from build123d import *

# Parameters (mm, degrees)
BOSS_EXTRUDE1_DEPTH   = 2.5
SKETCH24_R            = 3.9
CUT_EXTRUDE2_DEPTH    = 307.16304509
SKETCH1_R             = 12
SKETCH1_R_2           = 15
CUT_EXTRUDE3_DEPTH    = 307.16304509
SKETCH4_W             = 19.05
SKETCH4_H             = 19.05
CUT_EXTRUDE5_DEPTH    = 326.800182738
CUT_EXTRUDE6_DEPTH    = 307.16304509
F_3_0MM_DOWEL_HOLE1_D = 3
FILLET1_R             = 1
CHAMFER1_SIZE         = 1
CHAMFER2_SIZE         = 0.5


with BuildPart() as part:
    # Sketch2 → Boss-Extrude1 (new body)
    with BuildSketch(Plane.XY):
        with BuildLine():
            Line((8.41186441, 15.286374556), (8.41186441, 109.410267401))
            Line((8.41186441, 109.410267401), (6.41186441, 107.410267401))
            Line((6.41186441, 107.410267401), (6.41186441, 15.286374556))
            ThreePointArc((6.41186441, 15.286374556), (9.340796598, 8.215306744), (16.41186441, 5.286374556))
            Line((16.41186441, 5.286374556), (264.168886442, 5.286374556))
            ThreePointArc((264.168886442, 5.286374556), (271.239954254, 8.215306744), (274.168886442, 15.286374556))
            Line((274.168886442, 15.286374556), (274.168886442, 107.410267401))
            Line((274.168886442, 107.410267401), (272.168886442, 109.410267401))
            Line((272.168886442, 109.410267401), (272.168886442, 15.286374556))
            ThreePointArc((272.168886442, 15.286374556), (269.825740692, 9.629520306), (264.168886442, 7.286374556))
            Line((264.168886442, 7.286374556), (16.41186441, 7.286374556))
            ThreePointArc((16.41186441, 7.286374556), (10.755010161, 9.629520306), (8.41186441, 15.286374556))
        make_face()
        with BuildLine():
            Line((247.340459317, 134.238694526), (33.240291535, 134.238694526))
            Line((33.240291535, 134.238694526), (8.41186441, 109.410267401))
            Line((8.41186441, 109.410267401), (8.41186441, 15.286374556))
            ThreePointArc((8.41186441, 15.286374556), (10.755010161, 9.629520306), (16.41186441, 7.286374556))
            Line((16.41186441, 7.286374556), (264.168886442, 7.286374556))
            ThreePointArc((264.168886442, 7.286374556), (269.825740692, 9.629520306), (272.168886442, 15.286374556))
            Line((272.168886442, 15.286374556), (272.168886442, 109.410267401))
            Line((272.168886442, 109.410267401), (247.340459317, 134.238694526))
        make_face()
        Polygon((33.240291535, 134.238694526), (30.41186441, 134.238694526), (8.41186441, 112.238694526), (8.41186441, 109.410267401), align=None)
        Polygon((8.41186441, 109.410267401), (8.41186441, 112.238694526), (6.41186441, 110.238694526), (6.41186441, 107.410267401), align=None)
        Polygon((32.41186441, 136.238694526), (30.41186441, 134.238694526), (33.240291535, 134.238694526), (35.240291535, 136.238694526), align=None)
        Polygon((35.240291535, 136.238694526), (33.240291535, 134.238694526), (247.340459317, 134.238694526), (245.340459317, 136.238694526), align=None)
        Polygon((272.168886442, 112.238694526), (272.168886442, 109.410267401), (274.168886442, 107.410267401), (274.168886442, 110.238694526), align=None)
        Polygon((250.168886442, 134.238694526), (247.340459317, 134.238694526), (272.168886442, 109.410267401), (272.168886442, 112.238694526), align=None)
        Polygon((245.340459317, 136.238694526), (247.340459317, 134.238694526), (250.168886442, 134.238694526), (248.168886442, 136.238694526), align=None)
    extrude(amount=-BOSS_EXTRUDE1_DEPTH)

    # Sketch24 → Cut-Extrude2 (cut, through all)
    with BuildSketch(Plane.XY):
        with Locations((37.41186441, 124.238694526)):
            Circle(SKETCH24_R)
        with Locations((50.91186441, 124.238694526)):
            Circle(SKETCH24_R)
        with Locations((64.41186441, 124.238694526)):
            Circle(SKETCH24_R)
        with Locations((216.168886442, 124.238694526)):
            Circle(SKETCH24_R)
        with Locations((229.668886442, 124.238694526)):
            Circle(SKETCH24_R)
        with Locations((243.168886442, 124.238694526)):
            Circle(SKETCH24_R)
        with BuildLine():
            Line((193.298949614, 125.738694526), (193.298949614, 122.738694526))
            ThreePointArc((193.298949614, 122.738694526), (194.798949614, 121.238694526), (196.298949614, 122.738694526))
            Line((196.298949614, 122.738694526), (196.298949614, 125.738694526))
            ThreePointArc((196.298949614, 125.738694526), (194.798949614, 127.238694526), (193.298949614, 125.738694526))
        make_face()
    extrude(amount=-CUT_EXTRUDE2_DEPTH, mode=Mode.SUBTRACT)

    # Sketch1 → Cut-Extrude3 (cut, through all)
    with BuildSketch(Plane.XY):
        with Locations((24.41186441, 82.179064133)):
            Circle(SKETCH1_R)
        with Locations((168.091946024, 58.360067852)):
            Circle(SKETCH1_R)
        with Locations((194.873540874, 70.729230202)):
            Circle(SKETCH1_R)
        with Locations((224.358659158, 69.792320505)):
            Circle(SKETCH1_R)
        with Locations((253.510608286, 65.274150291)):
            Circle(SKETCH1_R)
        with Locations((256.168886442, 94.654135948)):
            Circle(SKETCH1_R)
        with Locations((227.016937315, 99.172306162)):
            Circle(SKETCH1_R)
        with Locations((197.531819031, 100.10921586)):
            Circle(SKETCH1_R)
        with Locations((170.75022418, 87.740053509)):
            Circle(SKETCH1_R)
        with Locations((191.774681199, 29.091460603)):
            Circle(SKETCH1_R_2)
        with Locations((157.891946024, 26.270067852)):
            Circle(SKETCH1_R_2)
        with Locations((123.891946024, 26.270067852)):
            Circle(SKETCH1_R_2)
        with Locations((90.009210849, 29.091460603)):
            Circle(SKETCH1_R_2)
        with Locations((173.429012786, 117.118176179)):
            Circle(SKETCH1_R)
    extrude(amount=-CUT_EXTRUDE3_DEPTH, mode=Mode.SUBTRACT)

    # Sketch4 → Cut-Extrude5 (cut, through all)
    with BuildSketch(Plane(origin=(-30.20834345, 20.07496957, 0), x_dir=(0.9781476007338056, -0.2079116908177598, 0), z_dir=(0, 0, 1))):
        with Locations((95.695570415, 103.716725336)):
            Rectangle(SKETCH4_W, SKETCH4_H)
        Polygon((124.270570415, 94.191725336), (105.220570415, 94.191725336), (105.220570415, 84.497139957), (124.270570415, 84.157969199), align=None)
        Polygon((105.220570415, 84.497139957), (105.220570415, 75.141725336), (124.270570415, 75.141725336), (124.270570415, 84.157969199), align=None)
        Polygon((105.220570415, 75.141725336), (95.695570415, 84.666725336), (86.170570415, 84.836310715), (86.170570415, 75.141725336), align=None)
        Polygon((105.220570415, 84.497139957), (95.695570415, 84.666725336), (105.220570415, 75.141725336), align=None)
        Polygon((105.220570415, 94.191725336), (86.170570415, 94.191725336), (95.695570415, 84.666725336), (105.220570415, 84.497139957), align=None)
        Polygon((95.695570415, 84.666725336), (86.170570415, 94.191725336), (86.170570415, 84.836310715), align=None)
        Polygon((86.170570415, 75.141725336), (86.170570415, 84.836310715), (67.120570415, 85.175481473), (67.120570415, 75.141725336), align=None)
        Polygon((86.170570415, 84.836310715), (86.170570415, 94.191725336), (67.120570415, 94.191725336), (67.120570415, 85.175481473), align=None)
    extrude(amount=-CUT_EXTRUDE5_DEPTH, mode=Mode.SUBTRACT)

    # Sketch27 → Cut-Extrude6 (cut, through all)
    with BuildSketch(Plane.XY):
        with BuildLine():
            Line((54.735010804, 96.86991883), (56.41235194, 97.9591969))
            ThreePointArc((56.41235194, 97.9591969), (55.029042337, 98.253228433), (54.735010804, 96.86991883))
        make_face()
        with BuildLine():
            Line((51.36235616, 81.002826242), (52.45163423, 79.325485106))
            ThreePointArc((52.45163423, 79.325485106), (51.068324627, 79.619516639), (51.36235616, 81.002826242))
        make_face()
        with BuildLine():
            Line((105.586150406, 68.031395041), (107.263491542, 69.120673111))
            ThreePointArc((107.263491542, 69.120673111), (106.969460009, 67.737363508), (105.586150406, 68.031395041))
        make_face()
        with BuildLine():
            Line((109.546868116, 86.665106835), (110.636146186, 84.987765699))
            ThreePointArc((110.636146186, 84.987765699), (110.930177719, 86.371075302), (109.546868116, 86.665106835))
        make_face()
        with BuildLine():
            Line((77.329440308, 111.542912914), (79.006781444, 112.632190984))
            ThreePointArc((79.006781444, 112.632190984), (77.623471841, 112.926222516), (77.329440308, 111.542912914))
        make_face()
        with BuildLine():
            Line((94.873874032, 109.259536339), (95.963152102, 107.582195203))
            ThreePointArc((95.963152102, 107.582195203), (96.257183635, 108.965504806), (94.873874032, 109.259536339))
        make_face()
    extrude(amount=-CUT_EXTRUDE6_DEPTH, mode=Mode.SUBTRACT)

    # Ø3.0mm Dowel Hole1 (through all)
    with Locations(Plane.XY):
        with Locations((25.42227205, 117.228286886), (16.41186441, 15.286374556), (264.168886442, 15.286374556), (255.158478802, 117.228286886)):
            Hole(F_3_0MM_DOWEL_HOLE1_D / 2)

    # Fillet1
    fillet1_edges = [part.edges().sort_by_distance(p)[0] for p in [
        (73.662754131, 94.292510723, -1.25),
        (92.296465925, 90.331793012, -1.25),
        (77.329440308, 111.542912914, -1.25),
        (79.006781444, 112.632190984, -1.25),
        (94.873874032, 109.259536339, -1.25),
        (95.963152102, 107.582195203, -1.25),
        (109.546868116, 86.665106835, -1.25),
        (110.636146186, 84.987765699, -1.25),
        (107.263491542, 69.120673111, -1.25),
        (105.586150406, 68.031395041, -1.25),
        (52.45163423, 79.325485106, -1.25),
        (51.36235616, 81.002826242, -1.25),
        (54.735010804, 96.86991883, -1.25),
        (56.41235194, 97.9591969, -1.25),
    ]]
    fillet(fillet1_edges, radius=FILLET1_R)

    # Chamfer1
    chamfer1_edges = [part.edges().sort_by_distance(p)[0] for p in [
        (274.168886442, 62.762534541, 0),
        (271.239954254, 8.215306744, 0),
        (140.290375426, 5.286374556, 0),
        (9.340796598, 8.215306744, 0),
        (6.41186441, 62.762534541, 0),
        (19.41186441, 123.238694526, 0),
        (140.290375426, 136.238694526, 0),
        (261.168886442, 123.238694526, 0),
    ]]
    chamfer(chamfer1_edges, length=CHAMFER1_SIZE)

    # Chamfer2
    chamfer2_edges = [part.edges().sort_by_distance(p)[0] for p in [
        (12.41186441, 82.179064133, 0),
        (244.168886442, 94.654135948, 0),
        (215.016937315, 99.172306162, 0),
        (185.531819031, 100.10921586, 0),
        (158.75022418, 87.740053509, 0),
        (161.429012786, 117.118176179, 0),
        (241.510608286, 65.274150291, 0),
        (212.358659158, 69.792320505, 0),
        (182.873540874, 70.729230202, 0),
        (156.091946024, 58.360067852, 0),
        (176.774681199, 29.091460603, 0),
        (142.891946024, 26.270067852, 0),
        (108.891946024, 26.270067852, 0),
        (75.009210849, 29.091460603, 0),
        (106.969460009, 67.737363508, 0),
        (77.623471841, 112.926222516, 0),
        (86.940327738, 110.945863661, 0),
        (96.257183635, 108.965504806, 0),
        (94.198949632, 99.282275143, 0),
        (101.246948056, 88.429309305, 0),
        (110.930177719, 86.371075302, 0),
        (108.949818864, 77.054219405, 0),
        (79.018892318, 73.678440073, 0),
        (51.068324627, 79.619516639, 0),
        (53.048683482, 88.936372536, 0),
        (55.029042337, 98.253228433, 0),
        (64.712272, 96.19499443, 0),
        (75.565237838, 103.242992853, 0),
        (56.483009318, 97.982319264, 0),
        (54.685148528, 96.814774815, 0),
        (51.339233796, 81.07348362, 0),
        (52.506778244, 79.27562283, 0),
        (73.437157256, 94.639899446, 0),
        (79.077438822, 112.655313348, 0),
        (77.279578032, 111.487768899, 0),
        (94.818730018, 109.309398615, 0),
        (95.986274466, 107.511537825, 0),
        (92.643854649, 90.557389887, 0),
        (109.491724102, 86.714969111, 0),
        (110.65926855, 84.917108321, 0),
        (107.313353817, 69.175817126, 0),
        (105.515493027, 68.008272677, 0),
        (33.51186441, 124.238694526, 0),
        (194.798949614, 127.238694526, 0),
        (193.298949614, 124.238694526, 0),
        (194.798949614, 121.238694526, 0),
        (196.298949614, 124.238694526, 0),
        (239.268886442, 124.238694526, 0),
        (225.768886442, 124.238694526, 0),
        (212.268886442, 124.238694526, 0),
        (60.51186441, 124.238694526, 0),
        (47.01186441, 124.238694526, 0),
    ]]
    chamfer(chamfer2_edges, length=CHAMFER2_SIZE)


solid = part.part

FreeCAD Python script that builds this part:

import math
import FreeCAD as App
import Part
import Sketcher
Q = App.Units.Quantity


def edges_at(feature, points):
    """Names of the edges that pass closest to the given points."""
    edges = feature.Shape.Edges
    near = lambda p: min(range(len(edges)), key=lambda i: edges[i].distToShape(Part.Vertex(*p))[0])
    return sorted({f"Edge{near(p) + 1}" for p in points})


def add_polygon(sketch, points):
    """Adds a closed chain of lines whose ends are joined by coincident constraints."""
    first, n = sketch.GeometryCount, len(points)
    for a, b in zip(points, points[1:] + points[:1]):
        sketch.addGeometry(Part.LineSegment(App.Vector(*a, 0), App.Vector(*b, 0)), False)
    for i in range(n):
        sketch.addConstraint(Sketcher.Constraint("Coincident", first + i, 2, first + (i + 1) % n, 1))

doc = App.newDocument("Part")
body = doc.addObject("PartDesign::Body", "Body")

sketch1 = body.newObject("Sketcher::SketchObject", "Sketch")
sketch1.AttachmentSupport = (doc.getObject("XY_Plane"), [""])
sketch1.MapMode = "FlatFace"
sketch1.addGeometry([
    Part.ArcOfCircle(Part.Circle(App.Vector(16, 15, 0), App.Vector(0, 0, 1), 10), math.radians(180), math.radians(270)),
    Part.LineSegment(App.Vector(16, 5, 0), App.Vector(264, 5, 0)),
    Part.ArcOfCircle(Part.Circle(App.Vector(264, 15, 0), App.Vector(0, 0, 1), 10), math.radians(-90), math.radians(0)),
    Part.LineSegment(App.Vector(274, 15, 0), App.Vector(274, 110, 0)),
    Part.LineSegment(App.Vector(274, 110, 0), App.Vector(248, 136, 0)),
    Part.LineSegment(App.Vector(248, 136, 0), App.Vector(32, 136, 0)),
    Part.LineSegment(App.Vector(32, 136, 0), App.Vector(6, 110, 0)),
    Part.LineSegment(App.Vector(6, 110, 0), App.Vector(6, 15, 0)),
], False)
sketch1.addConstraint([
    Sketcher.Constraint("Tangent", 0, 2, 1, 1),
    Sketcher.Constraint("Tangent", 1, 2, 2, 1),
    Sketcher.Constraint("Tangent", 2, 2, 3, 1),
    Sketcher.Constraint("Coincident", 3, 2, 4, 1),
    Sketcher.Constraint("Coincident", 4, 2, 5, 1),
    Sketcher.Constraint("Coincident", 5, 2, 6, 1),
    Sketcher.Constraint("Coincident", 6, 2, 7, 1),
    Sketcher.Constraint("Tangent", 7, 2, 0, 1),
    Sketcher.Constraint("Horizontal", 1),
    Sketcher.Constraint("Vertical", 3),
    Sketcher.Constraint("Horizontal", 5),
    Sketcher.Constraint("Vertical", 7),
    Sketcher.Constraint("Equal", 0, 2),
    Sketcher.Constraint("Perpendicular", 4, 6),
    Sketcher.Constraint("Horizontal", 3, 2, 6, 2),
    Sketcher.Constraint("Equal", 4, 6),
    Sketcher.Constraint("Radius", 0, 10.0),
    Sketcher.Constraint("DistanceX", 4, 2, 3, 2, 26.0),
    Sketcher.Constraint("DistanceY", 3, 1, 3, 2, 94.95232),
    Sketcher.Constraint("DistanceX", 1, 1, 1, 2, 247.757022),
    Sketcher.Constraint("DistanceX", -1, 1, 0, 3, 16.411864),
    Sketcher.Constraint("DistanceY", -1, 1, 0, 3, 15.286375),
])
pad1 = body.newObject("PartDesign::Pad", "Pad")
pad1.Profile = sketch1
pad1.Length = 2.5
pad1.Reversed = True

sketch2 = body.newObject("Sketcher::SketchObject", "Sketch001")
sketch2.AttachmentSupport = (doc.getObject("XY_Plane"), [""])
sketch2.MapMode = "FlatFace"
sketch2.addGeometry([
    Part.Circle(App.Vector(37.4, 124.2, 0), App.Vector(0, 0, 1), 3.9),
    Part.Circle(App.Vector(50.9, 124.2, 0), App.Vector(0, 0, 1), 3.9),
    Part.Circle(App.Vector(64.4, 124.2, 0), App.Vector(0, 0, 1), 3.9),
    Part.Circle(App.Vector(216.2, 124.2, 0), App.Vector(0, 0, 1), 3.9),
    Part.Circle(App.Vector(229.7, 124.2, 0), App.Vector(0, 0, 1), 3.9),
    Part.Circle(App.Vector(243.2, 124.2, 0), App.Vector(0, 0, 1), 3.9),
    Part.LineSegment(App.Vector(193.3, 125.7, 0), App.Vector(193.3, 122.7, 0)),
    Part.ArcOfCircle(Part.Circle(App.Vector(194.8, 122.7, 0), App.Vector(0, 0, 1), 1.5), math.radians(180), math.radians(360)),
    Part.LineSegment(App.Vector(196.3, 122.7, 0), App.Vector(196.3, 125.7, 0)),
    Part.ArcOfCircle(Part.Circle(App.Vector(194.8, 125.7, 0), App.Vector(0, 0, 1), 1.5), math.radians(0), math.radians(180)),
], False)
sketch2.addConstraint([
    Sketcher.Constraint("Tangent", 6, 2, 7, 1),
    Sketcher.Constraint("Tangent", 7, 2, 8, 1),
    Sketcher.Constraint("Tangent", 8, 2, 9, 1),
    Sketcher.Constraint("Tangent", 9, 2, 6, 1),
    Sketcher.Constraint("Vertical", 6),
    Sketcher.Constraint("Vertical", 8),
    Sketcher.Constraint("Equal", 0, 1),
    Sketcher.Constraint("Equal", 1, 2),
    Sketcher.Constraint("Equal", 2, 3),
    Sketcher.Constraint("Equal", 3, 4),
    Sketcher.Constraint("Equal", 4, 5),
    Sketcher.Constraint("Horizontal", 0, 3, 1, 3),
    Sketcher.Constraint("Horizontal", 1, 3, 2, 3),
    Sketcher.Constraint("Horizontal", 2, 3, 3, 3),
    Sketcher.Constraint("Horizontal", 3, 3, 4, 3),
    Sketcher.Constraint("Horizontal", 4, 3, 5, 3),
    Sketcher.Constraint("Diameter", 0, 7.8),
    Sketcher.Constraint("Radius", 7, 1.5),
    Sketcher.Constraint("DistanceY", 6, 2, 6, 1, 3.0),
    Sketcher.Constraint("DistanceX", 0, 3, 2, 3, 27.0),
    Sketcher.Constraint("DistanceX", 3, 3, 5, 3, 27.0),
    Sketcher.Constraint("DistanceX", 0, 3, 1, 3, 13.5),
    Sketcher.Constraint("DistanceX", 3, 3, 4, 3, 13.5),
    Sketcher.Constraint("DistanceY", 7, 3, 3, 3, 1.5),
    Sketcher.Constraint("DistanceX", -1, 1, 7, 3, 194.79895),
    Sketcher.Constraint("DistanceX", -1, 1, 0, 3, 37.411864),
    Sketcher.Constraint("DistanceY", -1, 1, 0, 3, 124.238695),
    Sketcher.Constraint("DistanceX", -1, 1, 3, 3, 216.168886),
])
pocket1 = body.newObject("PartDesign::Pocket", "Pocket")
pocket1.Profile = sketch2
pocket1.Type = "ThroughAll"

sketch3 = body.newObject("Sketcher::SketchObject", "Sketch002")
sketch3.AttachmentSupport = (doc.getObject("XY_Plane"), [""])
sketch3.MapMode = "FlatFace"
sketch3.addGeometry([
    Part.Circle(App.Vector(24, 82, 0), App.Vector(0, 0, 1), 12),
    Part.Circle(App.Vector(168, 58, 0), App.Vector(0, 0, 1), 12),
    Part.Circle(App.Vector(195, 71, 0), App.Vector(0, 0, 1), 12),
    Part.Circle(App.Vector(224, 70, 0), App.Vector(0, 0, 1), 12),
    Part.Circle(App.Vector(254, 65, 0), App.Vector(0, 0, 1), 12),
    Part.Circle(App.Vector(256, 95, 0), App.Vector(0, 0, 1), 12),
    Part.Circle(App.Vector(227, 99, 0), App.Vector(0, 0, 1), 12),
    Part.Circle(App.Vector(198, 100, 0), App.Vector(0, 0, 1), 12),
    Part.Circle(App.Vector(171, 88, 0), App.Vector(0, 0, 1), 12),
    Part.Circle(App.Vector(192, 29, 0), App.Vector(0, 0, 1), 15),
    Part.Circle(App.Vector(158, 26, 0), App.Vector(0, 0, 1), 15),
    Part.Circle(App.Vector(124, 26, 0), App.Vector(0, 0, 1), 15),
    Part.Circle(App.Vector(90, 29, 0), App.Vector(0, 0, 1), 15),
    Part.Circle(App.Vector(173, 117, 0), App.Vector(0, 0, 1), 12),
], False)
sketch3.addConstraint([
    Sketcher.Constraint("Equal", 0, 1),
    Sketcher.Constraint("Equal", 1, 2),
    Sketcher.Constraint("Equal", 2, 3),
    Sketcher.Constraint("Equal", 3, 4),
    Sketcher.Constraint("Equal", 4, 5),
    Sketcher.Constraint("Equal", 5, 6),
    Sketcher.Constraint("Equal", 6, 7),
    Sketcher.Constraint("Equal", 7, 8),
    Sketcher.Constraint("Equal", 9, 10),
    Sketcher.Constraint("Equal", 10, 11),
    Sketcher.Constraint("Equal", 11, 12),
    Sketcher.Constraint("Equal", 8, 13),
    Sketcher.Constraint("Horizontal", 10, 3, 11, 3),
    Sketcher.Constraint("Horizontal", 9, 3, 12, 3),
    Sketcher.Constraint("Diameter", 0, 24.0),
    Sketcher.Constraint("Diameter", 9, 30.0),
    Sketcher.Constraint("DistanceX", 11, 3, 10, 3, 34.0),
    Sketcher.Constraint("DistanceX", 10, 3, 1, 3, 10.2),
    Sketcher.Constraint("DistanceY", 10, 3, 1, 3, 32.09),
    Sketcher.Constraint("DistanceX", -1, 1, 2, 3, 194.873541),
    Sketcher.Constraint("DistanceY", -1, 1, 2, 3, 70.72923),
    Sketcher.Constraint("DistanceX", -1, 1, 3, 3, 224.358659),
    Sketcher.Constraint("DistanceY", -1, 1, 3, 3, 69.792321),
    Sketcher.Constraint("DistanceX", -1, 1, 4, 3, 253.510608),
    Sketcher.Constraint("DistanceY", -1, 1, 4, 3, 65.27415),
    Sketcher.Constraint("DistanceX", -1, 1, 7, 3, 197.531819),
    Sketcher.Constraint("DistanceX", -1, 1, 9, 3, 191.774681),
    Sketcher.Constraint("DistanceY", -1, 1, 9, 3, 29.091461),
    Sketcher.Constraint("DistanceX", -1, 1, 12, 3, 90.009211),
    Sketcher.Constraint("DistanceX", 0, 3, 1, 3, 143.680082),
    Sketcher.Constraint("DistanceX", 4, 3, 5, 3, 2.658278),
    Sketcher.Constraint("DistanceX", 1, 3, 5, 3, 88.07694),
    Sketcher.Constraint("DistanceY", 1, 3, 5, 3, 36.294068),
    Sketcher.Constraint("DistanceY", 0, 3, 5, 3, 12.475072),
    Sketcher.Constraint("DistanceX", 3, 3, 6, 3, 2.658278),
    Sketcher.Constraint("DistanceY", 5, 3, 6, 3, 4.51817),
    Sketcher.Constraint("DistanceY", 6, 3, 7, 3, 0.93691),
    Sketcher.Constraint("DistanceX", 1, 3, 8, 3, 2.658278),
    Sketcher.Constraint("DistanceX", 8, 3, 13, 3, 2.678789),
    Sketcher.Constraint("DistanceY", 7, 3, 13, 3, 17.00896),
    Sketcher.Constraint("DistanceY", -1, 1, 0, 3, 82.179064),
    Sketcher.Constraint("DistanceY", -1, 1, 8, 3, 87.740054),
])
pocket2 = body.newObject("PartDesign::Pocket", "Pocket001")
pocket2.Profile = sketch3
pocket2.Type = "ThroughAll"

sketch4 = body.newObject("Sketcher::SketchObject", "Sketch003")
sketch4.AttachmentSupport = (doc.getObject("XY_Plane"), [""])
sketch4.MapMode = "FlatFace"
add_polygon(sketch4, [(78, 113), (74, 94), (55, 98), (51, 80), (107, 68), (111, 86), (92, 90), (96, 109)])
sketch4.addConstraint([
    Sketcher.Constraint("Perpendicular", 0, 1),
    Sketcher.Constraint("Perpendicular", 1, 2),
    Sketcher.Constraint("Perpendicular", 2, 3),
    Sketcher.Constraint("Perpendicular", 3, 4),
    Sketcher.Constraint("Perpendicular", 4, 5),
    Sketcher.Constraint("Perpendicular", 5, 6),
    Sketcher.Constraint("Perpendicular", 6, 7),
    Sketcher.Constraint("Equal", 0, 1),
    Sketcher.Constraint("Equal", 1, 2),
    Sketcher.Constraint("Equal", 2, 4),
    Sketcher.Constraint("Equal", 4, 5),
    Sketcher.Constraint("Equal", 6, 7),
    Sketcher.Constraint("Angle", 0, Q("-102 deg")),
    Sketcher.Constraint("Distance", 0, 19.05),
    Sketcher.Constraint("DistanceY", -1, 1, 0, 2, 94.292511),
    Sketcher.Constraint("DistanceX", -1, 1, 3, 2, 106.96946),
])
pocket3 = body.newObject("PartDesign::Pocket", "Pocket002")
pocket3.Profile = sketch4
pocket3.Type = "ThroughAll"

sketch5 = body.newObject("Sketcher::SketchObject", "Sketch004")
sketch5.AttachmentSupport = (doc.getObject("XY_Plane"), [""])
sketch5.MapMode = "FlatFace"
sketch5.addGeometry([
    Part.LineSegment(App.Vector(54.7, 96.9, 0), App.Vector(56.4, 98, 0)),
    Part.ArcOfCircle(Part.Circle(App.Vector(55.6, 97.4, 0), App.Vector(0, 0, 1), 1), math.radians(33), math.radians(213)),
    Part.LineSegment(App.Vector(52.5, 79.3, 0), App.Vector(51.4, 81, 0)),
    Part.ArcOfCircle(Part.Circle(App.Vector(51.9, 80.2, 0), App.Vector(0, 0, 1), 1), math.radians(123), math.radians(303)),
    Part.LineSegment(App.Vector(107.3, 69.1, 0), App.Vector(105.6, 68, 0)),
    Part.ArcOfCircle(Part.Circle(App.Vector(106.4, 68.6, 0), App.Vector(0, 0, 1), 1), math.radians(-147), math.radians(33)),
    Part.LineSegment(App.Vector(109.5, 86.7, 0), App.Vector(110.6, 85, 0)),
    Part.ArcOfCircle(Part.Circle(App.Vector(110.1, 85.8, 0), App.Vector(0, 0, 1), 1), math.radians(-57), math.radians(123)),
    Part.LineSegment(App.Vector(77.3, 111.5, 0), App.Vector(79, 112.6, 0)),
    Part.ArcOfCircle(Part.Circle(App.Vector(78.2, 112.1, 0), App.Vector(0, 0, 1), 1), math.radians(33), math.radians(213)),
    Part.LineSegment(App.Vector(94.9, 109.3, 0), App.Vector(96, 107.6, 0)),
    Part.ArcOfCircle(Part.Circle(App.Vector(95.4, 108.4, 0), App.Vector(0, 0, 1), 1), math.radians(-57), math.radians(123)),
], False)
sketch5.addConstraint([
    Sketcher.Constraint("Coincident", 0, 1, 1, 2),
    Sketcher.Constraint("Coincident", 1, 1, 0, 2),
    Sketcher.Constraint("Coincident", 2, 1, 3, 2),
    Sketcher.Constraint("Coincident", 3, 1, 2, 2),
    Sketcher.Constraint("Coincident", 4, 1, 5, 2),
    Sketcher.Constraint("Coincident", 5, 1, 4, 2),
    Sketcher.Constraint("Coincident", 6, 1, 7, 2),
    Sketcher.Constraint("Coincident", 7, 1, 6, 2),
    Sketcher.Constraint("Coincident", 8, 1, 9, 2),
    Sketcher.Constraint("Coincident", 9, 1, 8, 2),
    Sketcher.Constraint("Coincident", 10, 1, 11, 2),
    Sketcher.Constraint("Coincident", 11, 1, 10, 2),
    Sketcher.Constraint("Equal", 1, 3),
    Sketcher.Constraint("Equal", 3, 5),
    Sketcher.Constraint("Equal", 5, 7),
    Sketcher.Constraint("Equal", 7, 9),
    Sketcher.Constraint("Equal", 9, 11),
    Sketcher.Constraint("Perpendicular", 0, 2),
    Sketcher.Constraint("Perpendicular", 2, 4),
    Sketcher.Constraint("Perpendicular", 4, 6),
    Sketcher.Constraint("Perpendicular", 6, 8),
    Sketcher.Constraint("Perpendicular", 8, 10),
    Sketcher.Constraint("Radius", 1, 1.0),
    Sketcher.Constraint("Angle", 0, Q("33 deg")),
    Sketcher.Constraint("DistanceX", 0, 1, 9, 3, 23.4331),
    Sketcher.Constraint("DistanceX", 1, 3, 9, 1, 23.4331),
    Sketcher.Constraint("DistanceX", -1, 1, 1, 3, 55.573681),
    Sketcher.Constraint("DistanceX", -1, 1, 5, 3, 106.424821),
    Sketcher.Constraint("DistanceX", -1, 1, 9, 3, 78.168111),
    Sketcher.Constraint("DistanceY", -1, 1, 9, 3, 112.087552),
    Sketcher.Constraint("DistanceY", -1, 1, 0, 1, 96.869919),
    Sketcher.Constraint("DistanceX", -1, 1, 4, 1, 107.263492),
    Sketcher.Constraint("DistanceX", -1, 1, 6, 1, 109.546868),
    Sketcher.Constraint("DistanceY", 5, 3, 3, 3, 11.588122),
    Sketcher.Constraint("DistanceY", 7, 3, 1, 3, 11.588122),
    Sketcher.Constraint("DistanceX", 3, 3, 7, 3, 58.184512),
    Sketcher.Constraint("DistanceY", 3, 3, 7, 3, 5.662281),
    Sketcher.Constraint("DistanceY", 7, 3, 11, 3, 22.59443),
    Sketcher.Constraint("DistanceX", 1, 3, 11, 3, 39.844832),
    Sketcher.Constraint("DistanceX", 3, 3, 2, 1, 0.544639),
    Sketcher.Constraint("DistanceX", 6, 1, 7, 3, 0.544639),
    Sketcher.Constraint("DistanceX", 10, 1, 11, 3, 0.544639),
])
pocket4 = body.newObject("PartDesign::Pocket", "Pocket003")
pocket4.Profile = sketch5
pocket4.Type = "ThroughAll"

sketch6 = body.newObject("Sketcher::SketchObject", "Sketch005")
sketch6.AttachmentSupport = (doc.getObject("XY_Plane"), [""])
sketch6.MapMode = "FlatFace"
sketch6.addGeometry([
    Part.Circle(App.Vector(25.4, 117.2, 0), App.Vector(0, 0, 1), 1.5),
    Part.Circle(App.Vector(16.4, 15.3, 0), App.Vector(0, 0, 1), 1.5),
    Part.Circle(App.Vector(264.2, 15.3, 0), App.Vector(0, 0, 1), 1.5),
    Part.Circle(App.Vector(255.2, 117.2, 0), App.Vector(0, 0, 1), 1.5),
], False)
sketch6.addConstraint([
    Sketcher.Constraint("Equal", 0, 1),
    Sketcher.Constraint("Equal", 1, 2),
    Sketcher.Constraint("Equal", 2, 3),
    Sketcher.Constraint("Horizontal", 1, 3, 2, 3),
    Sketcher.Constraint("Horizontal", 0, 3, 3, 3),
    Sketcher.Constraint("Diameter", 0, 3.0),
    Sketcher.Constraint("DistanceX", -1, 1, 3, 3, 255.158479),
    Sketcher.Constraint("DistanceX", -1, 1, 0, 3, 25.422272),
    Sketcher.Constraint("DistanceY", -1, 1, 0, 3, 117.228287),
    Sketcher.Constraint("DistanceX", -1, 1, 1, 3, 16.411864),
    Sketcher.Constraint("DistanceY", -1, 1, 1, 3, 15.286375),
    Sketcher.Constraint("DistanceX", -1, 1, 2, 3, 264.168886),
])
doc.recompute()
hole = body.newObject("PartDesign::Hole", "Hole")
hole.Profile = sketch6
hole.ThreadType = "None"
hole.Diameter = 3
hole.DepthType = "ThroughAll"
doc.recompute()

fillet = body.newObject("PartDesign::Fillet", "Fillet")
fillet.Base = (hole, edges_at(hole, [
    (73.663, 94.293, -1.25),
    (92.296, 90.332, -1.25),
    (77.329, 111.543, -1.25),
    (79.007, 112.632, -1.25),
    (94.874, 109.26, -1.25),
    (95.963, 107.582, -1.25),
    (109.547, 86.665, -1.25),
    (110.636, 84.988, -1.25),
    (107.263, 69.121, -1.25),
    (105.586, 68.031, -1.25),
    (52.452, 79.325, -1.25),
    (51.362, 81.003, -1.25),
    (54.735, 96.87, -1.25),
    (56.412, 97.959, -1.25),
]))
fillet.Radius = 1
doc.recompute()

chamfer = body.newObject("PartDesign::Chamfer", "Chamfer")
chamfer.Base = (fillet, edges_at(fillet, [
    (274.169, 62.763, 0),
    (271.24, 8.215, 0),
    (140.29, 5.286, 0),
    (9.341, 8.215, 0),
    (6.412, 62.763, 0),
    (19.412, 123.239, 0),
    (140.29, 136.239, 0),
    (261.169, 123.239, 0),
]))
chamfer.Size = 1
doc.recompute()

chamfer2 = body.newObject("PartDesign::Chamfer", "Chamfer001")
chamfer2.Base = (chamfer, edges_at(chamfer, [
    (12.412, 82.179, 0),
    (244.169, 94.654, 0),
    (215.017, 99.172, 0),
    (185.532, 100.109, 0),
    (158.75, 87.74, 0),
    (161.429, 117.118, 0),
    (241.511, 65.274, 0),
    (212.359, 69.792, 0),
    (182.874, 70.729, 0),
    (156.092, 58.36, 0),
    (176.775, 29.091, 0),
    (142.892, 26.27, 0),
    (108.892, 26.27, 0),
    (75.009, 29.091, 0),
    (106.969, 67.737, 0),
    (77.623, 112.926, 0),
    (86.94, 110.946, 0),
    (96.257, 108.966, 0),
    (94.199, 99.282, 0),
    (101.247, 88.429, 0),
    (110.93, 86.371, 0),
    (108.95, 77.054, 0),
    (79.019, 73.678, 0),
    (51.068, 79.62, 0),
    (53.049, 88.936, 0),
    (55.029, 98.253, 0),
    (64.712, 96.195, 0),
    (75.565, 103.243, 0),
    (56.483, 97.982, 0),
    (54.685, 96.815, 0),
    (51.339, 81.073, 0),
    (52.507, 79.276, 0),
    (73.437, 94.64, 0),
    (79.077, 112.655, 0),
    (77.28, 111.488, 0),
    (94.819, 109.309, 0),
    (95.986, 107.512, 0),
    (92.644, 90.557, 0),
    (109.492, 86.715, 0),
    (110.659, 84.917, 0),
    (107.313, 69.176, 0),
    (105.515, 68.008, 0),
    (33.512, 124.239, 0),
    (194.799, 127.239, 0),
    (193.299, 124.239, 0),
    (194.799, 121.239, 0),
    (196.299, 124.239, 0),
    (239.269, 124.239, 0),
    (225.769, 124.239, 0),
    (212.269, 124.239, 0),
    (60.512, 124.239, 0),
    (47.012, 124.239, 0),
]))
chamfer2.Size = 0.5

doc.recompute()
